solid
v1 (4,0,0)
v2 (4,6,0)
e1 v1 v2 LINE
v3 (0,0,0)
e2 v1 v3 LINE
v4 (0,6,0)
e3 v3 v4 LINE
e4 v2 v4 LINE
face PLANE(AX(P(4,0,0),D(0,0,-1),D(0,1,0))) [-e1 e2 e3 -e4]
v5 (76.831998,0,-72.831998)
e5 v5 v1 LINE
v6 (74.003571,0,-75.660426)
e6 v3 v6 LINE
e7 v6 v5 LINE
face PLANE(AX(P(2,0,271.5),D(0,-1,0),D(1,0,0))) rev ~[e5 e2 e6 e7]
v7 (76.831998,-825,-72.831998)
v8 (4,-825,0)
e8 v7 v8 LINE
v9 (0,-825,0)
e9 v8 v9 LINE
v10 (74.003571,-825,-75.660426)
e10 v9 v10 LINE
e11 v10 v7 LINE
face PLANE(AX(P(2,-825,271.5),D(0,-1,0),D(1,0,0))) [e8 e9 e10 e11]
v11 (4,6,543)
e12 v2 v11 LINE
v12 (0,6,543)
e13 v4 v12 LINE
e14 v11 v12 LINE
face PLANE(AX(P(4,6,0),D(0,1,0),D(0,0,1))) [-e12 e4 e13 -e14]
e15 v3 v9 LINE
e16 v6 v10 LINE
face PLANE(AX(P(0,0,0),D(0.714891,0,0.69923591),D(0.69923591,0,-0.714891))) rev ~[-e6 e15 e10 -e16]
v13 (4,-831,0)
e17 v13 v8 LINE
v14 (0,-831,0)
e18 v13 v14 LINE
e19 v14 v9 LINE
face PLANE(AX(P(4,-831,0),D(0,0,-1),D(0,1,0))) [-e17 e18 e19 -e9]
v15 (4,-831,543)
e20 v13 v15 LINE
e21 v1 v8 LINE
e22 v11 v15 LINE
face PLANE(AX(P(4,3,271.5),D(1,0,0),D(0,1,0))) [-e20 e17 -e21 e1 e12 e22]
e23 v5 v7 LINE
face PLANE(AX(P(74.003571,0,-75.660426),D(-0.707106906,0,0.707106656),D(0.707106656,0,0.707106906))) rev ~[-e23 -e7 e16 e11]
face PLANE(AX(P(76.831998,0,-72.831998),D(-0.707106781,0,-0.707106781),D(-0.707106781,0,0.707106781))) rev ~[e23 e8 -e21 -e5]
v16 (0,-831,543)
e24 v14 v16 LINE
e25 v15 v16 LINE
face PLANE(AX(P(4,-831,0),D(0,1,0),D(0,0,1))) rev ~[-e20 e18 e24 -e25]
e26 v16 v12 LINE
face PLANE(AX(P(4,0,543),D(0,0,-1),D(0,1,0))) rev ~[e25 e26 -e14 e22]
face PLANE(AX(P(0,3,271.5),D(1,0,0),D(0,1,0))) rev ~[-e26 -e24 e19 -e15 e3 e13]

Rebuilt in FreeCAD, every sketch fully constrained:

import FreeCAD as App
import Part
import Sketcher
from FreeCAD import Vector
Q = App.Units.Quantity

doc = App.newDocument("Part")
body = doc.addObject("PartDesign::Body", "Body")

sketch1 = doc.addObject("Sketcher::SketchObject", "Sketch")
body.addObject(sketch1)
sketch1.AttachmentSupport = (doc.XZ_Plane, [""])
sketch1.MapMode = "FlatFace"
sketch1.addGeometry(Part.LineSegment(Vector(0, 543, 0), Vector(0, 0, 0)), False)
sketch1.addGeometry(Part.LineSegment(Vector(0, 0, 0), Vector(74, -75.7, 0)), False)
sketch1.addGeometry(Part.LineSegment(Vector(74, -75.7, 0), Vector(76.8, -72.8, 0)), False)
sketch1.addGeometry(Part.LineSegment(Vector(76.8, -72.8, 0), Vector(4, 0, 0)), False)
sketch1.addGeometry(Part.LineSegment(Vector(4, 0, 0), Vector(4, 543, 0)), False)
sketch1.addGeometry(Part.LineSegment(Vector(4, 543, 0), Vector(0, 543, 0)), False)
sketch1.addConstraint(Sketcher.Constraint("Coincident", 0, 2, 1, 1))
sketch1.addConstraint(Sketcher.Constraint("Coincident", 1, 2, 2, 1))
sketch1.addConstraint(Sketcher.Constraint("Coincident", 2, 2, 3, 1))
sketch1.addConstraint(Sketcher.Constraint("Coincident", 3, 2, 4, 1))
sketch1.addConstraint(Sketcher.Constraint("Coincident", 4, 2, 5, 1))
sketch1.addConstraint(Sketcher.Constraint("Coincident", 5, 2, 0, 1))
sketch1.addConstraint(Sketcher.Constraint("Vertical", 0))
sketch1.addConstraint(Sketcher.Constraint("Vertical", 4))
sketch1.addConstraint(Sketcher.Constraint("Horizontal", 5))
sketch1.addConstraint(Sketcher.Constraint("Coincident", 0, 2, -1, 1))
sketch1.addConstraint(Sketcher.Constraint("PointOnObject", 3, 2, -1))
sketch1.addConstraint(Sketcher.Constraint("Perpendicular", 2, 3))
sketch1.addConstraint(Sketcher.Constraint("DistanceX", 5, 2, 5, 1, Q("4 mm")))
sketch1.addConstraint(Sketcher.Constraint("DistanceY", 0, 2, 0, 1, Q("543 mm")))
sketch1.addConstraint(Sketcher.Constraint("Angle", 2, Q("45.00001 deg")))
sketch1.addConstraint(Sketcher.Constraint("Distance", 2, Q("4.000001 mm")))
sketch1.addConstraint(Sketcher.Constraint("Distance", 3, Q("102.999999 mm")))
pad1 = doc.addObject("PartDesign::Pad", "Pad")
body.addObject(pad1)
pad1.Profile = sketch1
pad1.Length = 825

sketch2 = doc.addObject("Sketcher::SketchObject", "Sketch001")
body.addObject(sketch2)
sketch2.AttachmentSupport = (doc.YZ_Plane, [""])
sketch2.MapMode = "FlatFace"
sketch2.AttachmentOffset = App.Placement(Vector(0, 0, 4), App.Rotation())
sketch2.addGeometry(Part.LineSegment(Vector(0, 543, 0), Vector(0, 0, 0)), False)
sketch2.addGeometry(Part.LineSegment(Vector(0, 0, 0), Vector(6, 0, 0)), False)
sketch2.addGeometry(Part.LineSegment(Vector(6, 0, 0), Vector(6, 543, 0)), False)
sketch2.addGeometry(Part.LineSegment(Vector(6, 543, 0), Vector(0, 543, 0)), False)
sketch2.addGeometry(Part.LineSegment(Vector(-831, 543, 0), Vector(-831, 0, 0)), False)
sketch2.addGeometry(Part.LineSegment(Vector(-831, 0, 0), Vector(-825, 0, 0)), False)
sketch2.addGeometry(Part.LineSegment(Vector(-825, 0, 0), Vector(-825, 543, 0)), False)
sketch2.addGeometry(Part.LineSegment(Vector(-825, 543, 0), Vector(-831, 543, 0)), False)
sketch2.addConstraint(Sketcher.Constraint("Coincident", 0, 2, 1, 1))
sketch2.addConstraint(Sketcher.Constraint("Coincident", 1, 2, 2, 1))
sketch2.addConstraint(Sketcher.Constraint("Coincident", 2, 2, 3, 1))
sketch2.addConstraint(Sketcher.Constraint("Coincident", 3, 2, 0, 1))
sketch2.addConstraint(Sketcher.Constraint("Coincident", 4, 2, 5, 1))
sketch2.addConstraint(Sketcher.Constraint("Coincident", 5, 2, 6, 1))
sketch2.addConstraint(Sketcher.Constraint("Coincident", 6, 2, 7, 1))
sketch2.addConstraint(Sketcher.Constraint("Coincident", 7, 2, 4, 1))
sketch2.addConstraint(Sketcher.Constraint("Vertical", 0))
sketch2.addConstraint(Sketcher.Constraint("Horizontal", 1))
sketch2.addConstraint(Sketcher.Constraint("Vertical", 2))
sketch2.addConstraint(Sketcher.Constraint("Horizontal", 3))
sketch2.addConstraint(Sketcher.Constraint("Vertical", 4))
sketch2.addConstraint(Sketcher.Constraint("Horizontal", 5))
sketch2.addConstraint(Sketcher.Constraint("Vertical", 6))
sketch2.addConstraint(Sketcher.Constraint("Horizontal", 7))
sketch2.addConstraint(Sketcher.Constraint("Coincident", 0, 2, -1, 1))
sketch2.addConstraint(Sketcher.Constraint("PointOnObject", 4, 2, -1))
sketch2.addConstraint(Sketcher.Constraint("Horizontal", 3, 2, 6, 2))
sketch2.addConstraint(Sketcher.Constraint("Equal", 3, 5))
sketch2.addConstraint(Sketcher.Constraint("DistanceX", 1, 1, 1, 2, Q("6 mm")))
sketch2.addConstraint(Sketcher.Constraint("DistanceY", 0, 2, 0, 1, Q("543 mm")))
sketch2.addConstraint(Sketcher.Constraint("DistanceX", 4, 2, -1, 1, Q("831 mm")))
pad2 = doc.addObject("PartDesign::Pad", "Pad001")
body.addObject(pad2)
pad2.Profile = sketch2
pad2.Length = 4
pad2.Reversed = True

doc.recompute()
